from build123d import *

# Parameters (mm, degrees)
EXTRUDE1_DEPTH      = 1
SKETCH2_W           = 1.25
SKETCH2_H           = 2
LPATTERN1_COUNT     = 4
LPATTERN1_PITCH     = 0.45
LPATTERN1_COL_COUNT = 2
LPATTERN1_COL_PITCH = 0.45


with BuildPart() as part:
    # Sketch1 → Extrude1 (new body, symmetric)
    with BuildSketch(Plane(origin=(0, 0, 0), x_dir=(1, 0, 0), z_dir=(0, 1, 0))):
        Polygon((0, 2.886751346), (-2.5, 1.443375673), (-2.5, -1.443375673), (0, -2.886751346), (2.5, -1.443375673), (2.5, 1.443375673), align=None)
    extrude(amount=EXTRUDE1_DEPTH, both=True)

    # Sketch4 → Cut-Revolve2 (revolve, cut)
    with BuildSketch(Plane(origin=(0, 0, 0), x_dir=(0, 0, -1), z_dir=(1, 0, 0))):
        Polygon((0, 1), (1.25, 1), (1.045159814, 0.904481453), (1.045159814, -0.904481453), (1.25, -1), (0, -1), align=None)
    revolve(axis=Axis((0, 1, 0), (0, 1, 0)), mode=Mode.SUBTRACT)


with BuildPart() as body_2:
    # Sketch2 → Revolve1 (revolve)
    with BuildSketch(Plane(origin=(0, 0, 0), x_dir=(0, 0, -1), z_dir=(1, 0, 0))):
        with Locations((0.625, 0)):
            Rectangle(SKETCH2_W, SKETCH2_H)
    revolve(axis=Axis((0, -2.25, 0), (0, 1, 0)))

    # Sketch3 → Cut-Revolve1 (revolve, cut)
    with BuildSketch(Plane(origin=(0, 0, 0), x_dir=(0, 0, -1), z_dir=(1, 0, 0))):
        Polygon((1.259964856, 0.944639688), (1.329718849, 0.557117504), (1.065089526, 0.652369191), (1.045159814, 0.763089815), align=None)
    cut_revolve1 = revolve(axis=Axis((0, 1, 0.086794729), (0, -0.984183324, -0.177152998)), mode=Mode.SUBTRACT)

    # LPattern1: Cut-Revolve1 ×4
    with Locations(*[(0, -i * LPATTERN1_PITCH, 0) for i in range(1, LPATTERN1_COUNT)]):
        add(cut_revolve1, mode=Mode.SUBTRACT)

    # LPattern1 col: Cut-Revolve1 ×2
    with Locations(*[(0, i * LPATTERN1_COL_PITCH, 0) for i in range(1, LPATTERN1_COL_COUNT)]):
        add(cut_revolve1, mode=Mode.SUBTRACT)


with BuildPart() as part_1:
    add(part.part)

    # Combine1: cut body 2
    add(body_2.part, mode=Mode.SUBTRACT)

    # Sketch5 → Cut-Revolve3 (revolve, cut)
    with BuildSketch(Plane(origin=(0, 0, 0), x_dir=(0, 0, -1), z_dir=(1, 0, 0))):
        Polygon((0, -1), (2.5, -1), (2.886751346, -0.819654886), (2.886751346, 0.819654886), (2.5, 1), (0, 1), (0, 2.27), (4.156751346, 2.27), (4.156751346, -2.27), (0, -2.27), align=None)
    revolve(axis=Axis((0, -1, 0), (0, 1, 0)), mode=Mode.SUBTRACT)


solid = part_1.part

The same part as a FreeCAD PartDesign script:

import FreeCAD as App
import Part
import Sketcher

V = App.Vector
Q = App.Units.Quantity

doc = App.newDocument("Part")
body = doc.addObject("PartDesign::Body", "Body")

# Sketch on XZ plane
sketch1 = body.newObject("Sketcher::SketchObject", "Sketch")
sketch1.AttachmentSupport = (doc.getObject("XZ_Plane"), [""])
sketch1.MapMode = "FlatFace"
sketch1.addGeometry([
    Part.LineSegment(V(0, -2.9, 0), V(-2.5, -1.4, 0)),  # 0
    Part.LineSegment(V(-2.5, -1.4, 0), V(-2.5, 1.4, 0)),  # 1
    Part.LineSegment(V(-2.5, 1.4, 0), V(0, 2.9, 0)),  # 2
    Part.LineSegment(V(0, 2.9, 0), V(2.5, 1.4, 0)),  # 3
    Part.LineSegment(V(2.5, 1.4, 0), V(2.5, -1.4, 0)),  # 4
    Part.LineSegment(V(2.5, -1.4, 0), V(0, -2.9, 0)),  # 5
], False)
sketch1.addConstraint([
    Sketcher.Constraint("Coincident", 0, 2, 1, 1),
    Sketcher.Constraint("Coincident", 1, 2, 2, 1),
    Sketcher.Constraint("Coincident", 2, 2, 3, 1),
    Sketcher.Constraint("Coincident", 3, 2, 4, 1),
    Sketcher.Constraint("Coincident", 4, 2, 5, 1),
    Sketcher.Constraint("Coincident", 5, 2, 0, 1),
    Sketcher.Constraint("Vertical", 1),
    Sketcher.Constraint("Vertical", 4),
    Sketcher.Constraint("Symmetric", 0, 2, 3, 2, -1, 1),
    Sketcher.Constraint("Symmetric", 2, 2, 5, 2, -1, 1),
    Sketcher.Constraint("PointOnObject", 2, 2, -2),
    Sketcher.Constraint("Parallel", 2, 5),
    Sketcher.Constraint("Horizontal", 1, 2, 3, 2),
    Sketcher.Constraint("Angle", 0, Q("150 deg")),
    Sketcher.Constraint("DistanceX", 1, 2, 3, 2, Q("5 mm")),
    Sketcher.Constraint("DistanceY", 1, 1, 1, 2, Q("2.886751 mm")),
])
pad1 = body.newObject("PartDesign::Pad", "Pad")
pad1.Profile = sketch1
pad1.Length = 2
pad1.Midplane = True

# Sketch on YZ plane
sketch2 = body.newObject("Sketcher::SketchObject", "Sketch001")
sketch2.AttachmentSupport = (doc.getObject("YZ_Plane"), [""])
sketch2.MapMode = "FlatFace"
sketch2.addGeometry([
    Part.LineSegment(V(1, -1.25, 0), V(1, 0, 0)),  # 0
    Part.LineSegment(V(1, 0, 0), V(-1, 0, 0)),  # 1
    Part.LineSegment(V(-1, 0, 0), V(-1, -1.25, 0)),  # 2
    Part.LineSegment(V(-1, -1.25, 0), V(-0.9, -1.05, 0)),  # 3
    Part.LineSegment(V(-0.9, -1.05, 0), V(0.9, -1.05, 0)),  # 4
    Part.LineSegment(V(0.9, -1.05, 0), V(1, -1.25, 0)),  # 5
], False)
sketch2.addConstraint([
    Sketcher.Constraint("Coincident", 0, 2, 1, 1),
    Sketcher.Constraint("Coincident", 1, 2, 2, 1),
    Sketcher.Constraint("Coincident", 2, 2, 3, 1),
    Sketcher.Constraint("Coincident", 3, 2, 4, 1),
    Sketcher.Constraint("Coincident", 4, 2, 5, 1),
    Sketcher.Constraint("Coincident", 5, 2, 0, 1),
    Sketcher.Constraint("Vertical", 0),
    Sketcher.Constraint("Horizontal", 1),
    Sketcher.Constraint("Vertical", 2),
    Sketcher.Constraint("Horizontal", 4),
    Sketcher.Constraint("Symmetric", 0, 2, 1, 2, -1, 1),
    Sketcher.Constraint("Horizontal", 2, 2, 5, 2),
    Sketcher.Constraint("Equal", 3, 5),
    Sketcher.Constraint("DistanceX", 1, 2, 1, 1, Q("2 mm")),
    Sketcher.Constraint("Angle", 3, Q("65 deg")),
    Sketcher.Constraint("DistanceY", 0, 1, 0, 2, Q("1.25 mm")),
    Sketcher.Constraint("DistanceX", 4, 1, 4, 2, Q("1.808963 mm")),
])
groove = body.newObject("PartDesign::Groove", "Groove")
groove.Profile = sketch2
groove.ReferenceAxis = (sketch2, ["H_Axis"])
groove.Angle = 360
body2 = doc.addObject("PartDesign::Body", "Body001")

# Sketch on YZ plane
sketch3 = body2.newObject("Sketcher::SketchObject", "Sketch002")
sketch3.AttachmentSupport = (doc.getObject("YZ_Plane001"), [""])
sketch3.MapMode = "FlatFace"
sketch3.addGeometry([
    Part.LineSegment(V(1, 0, 0), V(-1, 0, 0)),
    Part.LineSegment(V(-1, 0, 0), V(-1, -1.2, 0)),
    Part.LineSegment(V(-1, -1.2, 0), V(1, -1.2, 0)),
    Part.LineSegment(V(1, -1.2, 0), V(1, 0, 0)),
], False)
sketch3.addConstraint([
    Sketcher.Constraint("Coincident", 0, 2, 1, 1),
    Sketcher.Constraint("Coincident", 1, 2, 2, 1),
    Sketcher.Constraint("Coincident", 2, 2, 3, 1),
    Sketcher.Constraint("Coincident", 3, 2, 0, 1),
    Sketcher.Constraint("Horizontal", 0),
    Sketcher.Constraint("Vertical", 1),
    Sketcher.Constraint("Horizontal", 2),
    Sketcher.Constraint("Vertical", 3),
    Sketcher.Constraint("Symmetric", 0, 2, 3, 2, -1, 1),
    Sketcher.Constraint("DistanceX", 0, 2, 0, 1, Q("2 mm")),
    Sketcher.Constraint("DistanceY", 1, 2, 1, 1, Q("1.25 mm")),
])
revolution = body2.newObject("PartDesign::Revolution", "Revolution")
revolution.Profile = sketch3
revolution.ReferenceAxis = (sketch3, ["H_Axis"])
revolution.Angle = 360

# Sketch on YZ plane
sketch4 = body2.newObject("Sketcher::SketchObject", "Sketch003")
sketch4.AttachmentSupport = (doc.getObject("YZ_Plane001"), [""])
sketch4.MapMode = "FlatFace"
sketch4.addGeometry([
    Part.LineSegment(V(0.56, -1.33, 0), V(0.94, -1.26, 0)),
    Part.LineSegment(V(0.94, -1.26, 0), V(0.76, -1.05, 0)),
    Part.LineSegment(V(0.76, -1.05, 0), V(0.65, -1.07, 0)),
    Part.LineSegment(V(0.65, -1.07, 0), V(0.56, -1.33, 0)),
], False)
sketch4.addGeometry(Part.LineSegment(V(0.71, 0.03, 0), V(0.32, -0.03, 0)), True)  # axis
sketch4.addConstraint([
    Sketcher.Constraint("Coincident", 0, 2, 1, 1),
    Sketcher.Constraint("Coincident", 1, 2, 2, 1),
    Sketcher.Constraint("Coincident", 2, 2, 3, 1),
    Sketcher.Constraint("Coincident", 3, 2, 0, 1),
    Sketcher.Constraint("Parallel", 0, 2),
    Sketcher.Constraint("Parallel", 2, 4),
    Sketcher.Constraint("Equal", 1, 3),
    Sketcher.Constraint("Equal", 0, 4),
    Sketcher.Constraint("Distance", 2, Q("0.1125 mm")),
    Sketcher.Constraint("DistanceX", 2, 2, 4, 1, Q("0.059199 mm")),
    Sketcher.Constraint("Distance", 0, Q("0.39375 mm")),
    Sketcher.Constraint("Distance", 1, Q("0.28125 mm")),
    Sketcher.Constraint("DistanceX", -1, 1, 0, 2, Q("0.94464 mm")),
    Sketcher.Constraint("DistanceX", -1, 1, 1, 2, Q("0.76309 mm")),
    Sketcher.Constraint("DistanceY", 1, 2, -1, 1, Q("1.04516 mm")),
    Sketcher.Constraint("DistanceY", 0, 2, 4, 1, Q("1.294842 mm")),
])
groove2 = body2.newObject("PartDesign::Groove", "Groove001")
groove2.Profile = sketch4
groove2.ReferenceAxis = (sketch4, ["Axis0"])
groove2.Angle = 360
doc.recompute()

linearpattern = body2.newObject("PartDesign::LinearPattern", "LinearPattern")
linearpattern.Originals = [groove2]
linearpattern.Direction = (doc.getObject("Y_Axis001"), [""])
linearpattern.Mode = "offset"
linearpattern.Offset = 0.45
linearpattern.Occurrences = 4
linearpattern.Reversed = True
body2.Tip = linearpattern
doc.recompute()

linearpattern2 = body2.newObject("PartDesign::LinearPattern", "LinearPattern001")
linearpattern2.Originals = [groove2]
linearpattern2.Direction = (doc.getObject("Y_Axis001"), [""])
linearpattern2.Mode = "offset"
linearpattern2.Offset = 0.45
linearpattern2.Occurrences = 2
body2.Tip = linearpattern2
doc.recompute()

boolean = body.newObject("PartDesign::Boolean", "Boolean")
boolean.Type = "Cut"
boolean.addObjects([body2])

# Sketch on YZ plane
sketch5 = body.newObject("Sketcher::SketchObject", "Sketch004")
sketch5.AttachmentSupport = (doc.getObject("YZ_Plane"), [""])
sketch5.MapMode = "FlatFace"
sketch5.addGeometry([
    Part.LineSegment(V(-1, -2.5, 0), V(-1, 0, 0)),  # 0
    Part.LineSegment(V(-1, 0, 0), V(-2.27, 0, 0)),  # 1
    Part.LineSegment(V(-2.27, 0, 0), V(-2.27, -4.16, 0)),  # 2
    Part.LineSegment(V(-2.27, -4.16, 0), V(2.27, -4.16, 0)),  # 3
    Part.LineSegment(V(2.27, -4.16, 0), V(2.27, 0, 0)),  # 4
    Part.LineSegment(V(2.27, 0, 0), V(1, 0, 0)),  # 5
    Part.LineSegment(V(1, 0, 0), V(1, -2.5, 0)),  # 6
    Part.LineSegment(V(1, -2.5, 0), V(0.82, -2.89, 0)),  # 7
    Part.LineSegment(V(0.82, -2.89, 0), V(-0.82, -2.89, 0)),  # 8
    Part.LineSegment(V(-0.82, -2.89, 0), V(-1, -2.5, 0)),  # 9
], False)
sketch5.addConstraint([
    Sketcher.Constraint("Coincident", 0, 2, 1, 1),
    Sketcher.Constraint("Coincident", 1, 2, 2, 1),
    Sketcher.Constraint("Coincident", 2, 2, 3, 1),
    Sketcher.Constraint("Coincident", 3, 2, 4, 1),
    Sketcher.Constraint("Coincident", 4, 2, 5, 1),
    Sketcher.Constraint("Coincident", 5, 2, 6, 1),
    Sketcher.Constraint("Coincident", 6, 2, 7, 1),
    Sketcher.Constraint("Coincident", 7, 2, 8, 1),
    Sketcher.Constraint("Coincident", 8, 2, 9, 1),
    Sketcher.Constraint("Coincident", 9, 2, 0, 1),
    Sketcher.Constraint("Vertical", 0),
    Sketcher.Constraint("Horizontal", 1),
    Sketcher.Constraint("Vertical", 2),
    Sketcher.Constraint("Horizontal", 3),
    Sketcher.Constraint("Vertical", 4),
    Sketcher.Constraint("Horizontal", 5),
    Sketcher.Constraint("Vertical", 6),
    Sketcher.Constraint("Horizontal", 8),
    Sketcher.Constraint("Symmetric", 1, 2, 4, 2, -1, 1),
    Sketcher.Constraint("Symmetric", 0, 2, 5, 2, -2),
    Sketcher.Constraint("Horizontal", 6, 2, 9, 2),
    Sketcher.Constraint("Equal", 7, 9),
    Sketcher.Constraint("Angle", 7, Q("-115 deg")),
    Sketcher.Constraint("DistanceY", 0, 1, 0, 2, Q("2.5 mm")),
    Sketcher.Constraint("DistanceX", 0, 2, -1, 1, Q("1 mm")),
    Sketcher.Constraint("DistanceX", 1, 2, 1, 1, Q("1.27 mm")),
    Sketcher.Constraint("DistanceY", 3, 2, 7, 2, Q("1.27 mm")),
    Sketcher.Constraint("DistanceX", 8, 2, 8, 1, Q("1.63931 mm")),
])
groove3 = body.newObject("PartDesign::Groove", "Groove002")
groove3.Profile = sketch5
groove3.ReferenceAxis = (sketch5, ["H_Axis"])
groove3.Angle = 360

doc.recompute()
